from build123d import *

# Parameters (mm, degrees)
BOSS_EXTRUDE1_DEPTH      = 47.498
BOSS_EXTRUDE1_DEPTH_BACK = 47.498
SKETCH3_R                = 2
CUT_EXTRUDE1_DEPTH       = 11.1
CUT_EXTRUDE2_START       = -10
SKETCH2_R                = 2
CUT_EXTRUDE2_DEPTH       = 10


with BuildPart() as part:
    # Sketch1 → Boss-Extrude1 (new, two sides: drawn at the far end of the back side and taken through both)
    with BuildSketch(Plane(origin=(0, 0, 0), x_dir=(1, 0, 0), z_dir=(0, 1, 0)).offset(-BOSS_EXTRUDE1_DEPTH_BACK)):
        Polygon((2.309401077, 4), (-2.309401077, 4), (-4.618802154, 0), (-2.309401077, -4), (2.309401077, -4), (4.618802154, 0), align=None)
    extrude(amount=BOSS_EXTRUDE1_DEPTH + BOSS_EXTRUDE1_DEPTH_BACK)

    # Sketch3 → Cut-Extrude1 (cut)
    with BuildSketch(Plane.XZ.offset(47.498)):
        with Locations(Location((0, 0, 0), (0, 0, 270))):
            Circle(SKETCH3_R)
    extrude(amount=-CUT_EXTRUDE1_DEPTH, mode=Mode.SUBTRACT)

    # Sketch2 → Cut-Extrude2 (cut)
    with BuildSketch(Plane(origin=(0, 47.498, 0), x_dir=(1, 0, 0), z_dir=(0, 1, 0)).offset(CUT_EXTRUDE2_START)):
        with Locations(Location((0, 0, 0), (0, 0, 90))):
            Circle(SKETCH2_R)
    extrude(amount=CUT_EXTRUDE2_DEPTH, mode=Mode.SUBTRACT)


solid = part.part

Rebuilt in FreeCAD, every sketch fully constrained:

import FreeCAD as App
import Part
import Sketcher
from FreeCAD import Vector
Q = App.Units.Quantity


def add_polygon(sketch, points):
    """Adds a closed chain of lines whose ends are joined by coincident constraints."""
    first, n = sketch.GeometryCount, len(points)
    for a, b in zip(points, points[1:] + points[:1]):
        sketch.addGeometry(Part.LineSegment(App.Vector(*a, 0), App.Vector(*b, 0)), False)
    for i in range(n):
        sketch.addConstraint(Sketcher.Constraint("Coincident", first + i, 2, first + (i + 1) % n, 1))

doc = App.newDocument("Part")
body = doc.addObject("PartDesign::Body", "Body")

sketch1 = doc.addObject("Sketcher::SketchObject", "Sketch")
body.addObject(sketch1)
sketch1.AttachmentSupport = (doc.XZ_Plane, [""])
sketch1.MapMode = "FlatFace"
add_polygon(sketch1, [(2.3, -4), (-2.3, -4), (-4.6, 0), (-2.3, 4), (2.3, 4), (4.6, 0)])
sketch1.addConstraint([
    Sketcher.Constraint("Horizontal", 0),
    Sketcher.Constraint("Horizontal", 3),
    Sketcher.Constraint("Symmetric", 0, 2, 3, 2, -1, 1),
    Sketcher.Constraint("Symmetric", 1, 2, 4, 2, -1, 1),
    Sketcher.Constraint("PointOnObject", 1, 2, -1),
    Sketcher.Constraint("Parallel", 2, 5),
    Sketcher.Constraint("Vertical", 0, 2, 2, 2),
    Sketcher.Constraint("Angle", 1, Q("120 deg")),
    Sketcher.Constraint("DistanceY", 0, 2, -1, 1, Q("4 mm")),
    Sketcher.Constraint("DistanceX", 0, 2, -1, 1, Q("2.309401 mm")),
])
pad1 = doc.addObject("PartDesign::Pad", "Pad")
body.addObject(pad1)
pad1.Profile = sketch1
pad1.Type = "TwoLengths"
pad1.Length = 47.498
pad1.Length2 = 47.498
pad1.Reversed = True

sketch2 = doc.addObject("Sketcher::SketchObject", "Sketch001")
body.addObject(sketch2)
sketch2.AttachmentSupport = (doc.XZ_Plane, [""])
sketch2.MapMode = "FlatFace"
sketch2.AttachmentOffset = App.Placement(Vector(0, 0, 47.498), App.Rotation())
sketch2.addGeometry(Part.Circle(Vector(0, 0, 0), Vector(0, 0, 1), 2), False)
sketch2.addConstraint([
    Sketcher.Constraint("Coincident", 0, 3, -1, 1),
    Sketcher.Constraint("Diameter", 0, Q("4 mm")),
])
pocket1 = doc.addObject("PartDesign::Pocket", "Pocket")
body.addObject(pocket1)
pocket1.Profile = sketch2
pocket1.Length = 11.1

sketch3 = doc.addObject("Sketcher::SketchObject", "Sketch002")
body.addObject(sketch3)
sketch3.AttachmentSupport = (doc.XZ_Plane, [""])
sketch3.MapMode = "FlatFace"
sketch3.AttachmentOffset = App.Placement(Vector(0, 0, -37.498), App.Rotation())
sketch3.addGeometry(Part.Circle(Vector(0, 0, 0), Vector(0, 0, 1), 2), False)
sketch3.addConstraint([
    Sketcher.Constraint("Coincident", 0, 3, -1, 1),
    Sketcher.Constraint("Diameter", 0, Q("4 mm")),
])
pocket2 = doc.addObject("PartDesign::Pocket", "Pocket001")
body.addObject(pocket2)
pocket2.Profile = sketch3
pocket2.Length = 10

doc.recompute()
